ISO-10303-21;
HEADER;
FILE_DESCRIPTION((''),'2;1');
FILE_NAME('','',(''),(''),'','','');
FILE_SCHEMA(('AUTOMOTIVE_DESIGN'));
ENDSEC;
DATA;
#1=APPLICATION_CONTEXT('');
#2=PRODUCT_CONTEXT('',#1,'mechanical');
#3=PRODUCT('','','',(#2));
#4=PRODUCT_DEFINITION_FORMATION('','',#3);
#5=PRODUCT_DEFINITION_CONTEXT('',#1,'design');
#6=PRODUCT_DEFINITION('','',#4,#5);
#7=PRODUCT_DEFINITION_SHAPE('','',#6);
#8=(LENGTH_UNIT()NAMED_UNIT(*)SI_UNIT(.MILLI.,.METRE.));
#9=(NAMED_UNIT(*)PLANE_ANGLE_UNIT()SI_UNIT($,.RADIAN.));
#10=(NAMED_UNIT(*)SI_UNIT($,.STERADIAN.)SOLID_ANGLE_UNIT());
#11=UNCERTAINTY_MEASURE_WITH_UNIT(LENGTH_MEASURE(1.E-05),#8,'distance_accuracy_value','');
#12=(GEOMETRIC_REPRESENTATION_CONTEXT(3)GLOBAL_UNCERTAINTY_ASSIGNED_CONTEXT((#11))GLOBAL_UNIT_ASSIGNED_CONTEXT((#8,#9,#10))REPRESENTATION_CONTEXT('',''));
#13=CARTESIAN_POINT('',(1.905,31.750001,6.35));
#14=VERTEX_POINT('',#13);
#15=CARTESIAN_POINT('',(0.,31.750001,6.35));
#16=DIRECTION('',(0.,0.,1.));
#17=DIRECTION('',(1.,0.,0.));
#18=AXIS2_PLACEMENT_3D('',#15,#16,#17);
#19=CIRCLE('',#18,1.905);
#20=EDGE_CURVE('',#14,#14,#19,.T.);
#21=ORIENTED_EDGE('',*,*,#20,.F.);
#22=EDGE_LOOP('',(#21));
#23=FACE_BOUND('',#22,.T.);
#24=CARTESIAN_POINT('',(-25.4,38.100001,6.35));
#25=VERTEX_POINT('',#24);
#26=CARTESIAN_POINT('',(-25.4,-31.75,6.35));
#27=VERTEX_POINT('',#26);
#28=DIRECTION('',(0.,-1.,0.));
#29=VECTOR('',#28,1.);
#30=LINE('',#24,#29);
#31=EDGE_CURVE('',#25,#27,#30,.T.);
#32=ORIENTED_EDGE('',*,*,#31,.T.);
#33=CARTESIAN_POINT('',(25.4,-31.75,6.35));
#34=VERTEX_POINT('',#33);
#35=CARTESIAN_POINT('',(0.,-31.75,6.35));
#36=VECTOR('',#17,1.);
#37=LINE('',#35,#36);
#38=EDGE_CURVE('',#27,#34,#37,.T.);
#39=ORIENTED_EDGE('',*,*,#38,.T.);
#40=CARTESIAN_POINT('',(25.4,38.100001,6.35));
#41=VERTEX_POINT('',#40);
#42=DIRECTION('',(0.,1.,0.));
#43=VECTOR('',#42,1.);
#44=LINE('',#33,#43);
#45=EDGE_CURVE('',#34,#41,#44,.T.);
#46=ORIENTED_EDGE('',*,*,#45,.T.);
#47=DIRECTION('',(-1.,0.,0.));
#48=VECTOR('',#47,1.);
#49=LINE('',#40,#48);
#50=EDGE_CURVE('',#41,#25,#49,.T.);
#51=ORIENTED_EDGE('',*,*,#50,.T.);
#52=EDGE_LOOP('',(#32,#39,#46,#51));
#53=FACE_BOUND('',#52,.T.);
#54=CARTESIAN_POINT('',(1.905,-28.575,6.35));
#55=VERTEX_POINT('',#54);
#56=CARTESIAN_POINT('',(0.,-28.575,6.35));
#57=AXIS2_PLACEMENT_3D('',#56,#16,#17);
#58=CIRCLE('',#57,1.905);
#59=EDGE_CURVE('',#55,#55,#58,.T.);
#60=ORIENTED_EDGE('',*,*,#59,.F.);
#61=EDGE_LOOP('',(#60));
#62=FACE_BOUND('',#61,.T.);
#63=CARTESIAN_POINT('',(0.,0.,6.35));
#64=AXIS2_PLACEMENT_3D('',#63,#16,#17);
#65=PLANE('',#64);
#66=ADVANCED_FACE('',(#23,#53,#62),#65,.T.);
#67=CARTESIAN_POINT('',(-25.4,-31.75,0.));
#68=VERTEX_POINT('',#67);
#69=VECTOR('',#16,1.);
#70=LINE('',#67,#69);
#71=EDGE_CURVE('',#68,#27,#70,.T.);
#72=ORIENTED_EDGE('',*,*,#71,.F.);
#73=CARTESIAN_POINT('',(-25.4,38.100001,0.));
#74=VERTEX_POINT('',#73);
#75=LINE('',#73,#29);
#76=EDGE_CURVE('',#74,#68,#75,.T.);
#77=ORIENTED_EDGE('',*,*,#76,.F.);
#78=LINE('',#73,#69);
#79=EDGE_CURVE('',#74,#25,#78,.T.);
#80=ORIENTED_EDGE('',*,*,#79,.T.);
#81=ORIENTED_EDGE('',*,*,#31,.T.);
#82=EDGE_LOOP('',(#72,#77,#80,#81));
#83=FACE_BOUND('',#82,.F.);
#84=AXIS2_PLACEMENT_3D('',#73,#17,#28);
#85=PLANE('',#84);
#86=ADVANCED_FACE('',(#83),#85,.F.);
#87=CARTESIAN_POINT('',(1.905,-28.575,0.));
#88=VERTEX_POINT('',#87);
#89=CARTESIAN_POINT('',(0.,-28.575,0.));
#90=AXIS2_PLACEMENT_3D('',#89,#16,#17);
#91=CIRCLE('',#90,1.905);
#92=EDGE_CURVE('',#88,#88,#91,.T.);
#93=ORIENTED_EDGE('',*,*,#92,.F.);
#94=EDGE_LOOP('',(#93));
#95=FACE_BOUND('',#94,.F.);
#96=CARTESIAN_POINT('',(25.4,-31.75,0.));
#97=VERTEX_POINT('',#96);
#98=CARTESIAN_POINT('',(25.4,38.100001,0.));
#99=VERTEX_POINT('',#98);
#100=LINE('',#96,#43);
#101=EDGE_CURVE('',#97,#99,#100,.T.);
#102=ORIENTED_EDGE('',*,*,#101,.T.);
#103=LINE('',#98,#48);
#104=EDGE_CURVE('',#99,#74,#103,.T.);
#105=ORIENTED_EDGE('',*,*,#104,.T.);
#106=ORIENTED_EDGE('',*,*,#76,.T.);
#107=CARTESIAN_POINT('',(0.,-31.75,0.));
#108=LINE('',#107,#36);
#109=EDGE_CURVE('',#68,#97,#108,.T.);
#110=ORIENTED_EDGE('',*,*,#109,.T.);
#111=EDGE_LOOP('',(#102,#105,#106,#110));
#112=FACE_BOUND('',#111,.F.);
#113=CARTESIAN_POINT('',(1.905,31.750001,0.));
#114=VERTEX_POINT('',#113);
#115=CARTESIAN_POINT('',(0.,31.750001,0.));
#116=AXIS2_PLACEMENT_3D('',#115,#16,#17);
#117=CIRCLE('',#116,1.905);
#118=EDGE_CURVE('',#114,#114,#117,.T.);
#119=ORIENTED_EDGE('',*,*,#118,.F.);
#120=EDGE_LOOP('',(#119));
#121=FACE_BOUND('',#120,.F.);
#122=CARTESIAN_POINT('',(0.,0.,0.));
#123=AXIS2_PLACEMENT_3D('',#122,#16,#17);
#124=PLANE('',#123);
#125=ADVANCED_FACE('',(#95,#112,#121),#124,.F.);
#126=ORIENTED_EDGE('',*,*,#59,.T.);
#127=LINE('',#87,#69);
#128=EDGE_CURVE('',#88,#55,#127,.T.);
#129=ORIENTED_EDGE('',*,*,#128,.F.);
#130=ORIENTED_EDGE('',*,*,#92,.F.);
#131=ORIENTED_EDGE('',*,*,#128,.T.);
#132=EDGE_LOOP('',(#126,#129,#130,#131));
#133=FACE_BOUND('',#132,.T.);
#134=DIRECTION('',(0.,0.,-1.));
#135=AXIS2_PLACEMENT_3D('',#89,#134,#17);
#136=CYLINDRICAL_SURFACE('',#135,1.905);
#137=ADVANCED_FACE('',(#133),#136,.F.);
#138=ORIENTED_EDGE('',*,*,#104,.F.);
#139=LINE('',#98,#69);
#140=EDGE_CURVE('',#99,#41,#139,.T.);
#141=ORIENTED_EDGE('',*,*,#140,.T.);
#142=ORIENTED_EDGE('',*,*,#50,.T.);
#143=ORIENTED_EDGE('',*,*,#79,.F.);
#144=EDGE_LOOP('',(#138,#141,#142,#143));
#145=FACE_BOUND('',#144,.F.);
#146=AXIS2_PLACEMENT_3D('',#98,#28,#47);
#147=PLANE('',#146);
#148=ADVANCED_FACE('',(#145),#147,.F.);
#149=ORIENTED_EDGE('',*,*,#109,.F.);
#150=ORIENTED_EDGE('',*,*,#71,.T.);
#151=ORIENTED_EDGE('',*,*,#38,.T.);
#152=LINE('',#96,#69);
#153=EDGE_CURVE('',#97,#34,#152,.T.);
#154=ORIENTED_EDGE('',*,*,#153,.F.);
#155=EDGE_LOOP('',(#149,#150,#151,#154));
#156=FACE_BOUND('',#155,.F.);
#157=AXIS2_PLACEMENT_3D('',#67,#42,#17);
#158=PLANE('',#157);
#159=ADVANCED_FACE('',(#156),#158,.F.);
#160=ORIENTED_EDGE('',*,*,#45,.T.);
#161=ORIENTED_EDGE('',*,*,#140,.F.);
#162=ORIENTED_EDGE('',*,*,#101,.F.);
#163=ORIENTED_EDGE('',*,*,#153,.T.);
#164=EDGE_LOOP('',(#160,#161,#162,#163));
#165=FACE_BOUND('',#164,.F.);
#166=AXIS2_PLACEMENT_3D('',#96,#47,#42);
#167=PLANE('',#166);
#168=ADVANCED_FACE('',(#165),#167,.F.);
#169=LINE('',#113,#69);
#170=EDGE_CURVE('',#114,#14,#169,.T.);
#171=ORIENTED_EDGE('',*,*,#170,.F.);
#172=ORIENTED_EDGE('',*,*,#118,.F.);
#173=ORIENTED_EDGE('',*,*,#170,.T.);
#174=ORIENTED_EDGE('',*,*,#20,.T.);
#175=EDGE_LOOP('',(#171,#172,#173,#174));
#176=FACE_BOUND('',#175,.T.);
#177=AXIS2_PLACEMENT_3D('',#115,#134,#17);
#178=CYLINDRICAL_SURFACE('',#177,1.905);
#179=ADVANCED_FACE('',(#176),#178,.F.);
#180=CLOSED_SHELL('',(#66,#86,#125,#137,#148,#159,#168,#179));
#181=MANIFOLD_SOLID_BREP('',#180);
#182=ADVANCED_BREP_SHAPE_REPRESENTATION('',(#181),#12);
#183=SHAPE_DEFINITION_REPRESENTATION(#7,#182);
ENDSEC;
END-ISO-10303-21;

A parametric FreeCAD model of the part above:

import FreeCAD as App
import Part
import Sketcher
from FreeCAD import Vector
Q = App.Units.Quantity


def add_polygon(sketch, points):
    """Adds a closed chain of lines whose ends are joined by coincident constraints."""
    first, n = sketch.GeometryCount, len(points)
    for a, b in zip(points, points[1:] + points[:1]):
        sketch.addGeometry(Part.LineSegment(App.Vector(*a, 0), App.Vector(*b, 0)), False)
    for i in range(n):
        sketch.addConstraint(Sketcher.Constraint("Coincident", first + i, 2, first + (i + 1) % n, 1))

doc = App.newDocument("Part")
body = doc.addObject("PartDesign::Body", "Body")

sketch1 = doc.addObject("Sketcher::SketchObject", "Sketch")
body.addObject(sketch1)
sketch1.AttachmentSupport = (doc.XY_Plane, [""])
sketch1.MapMode = "FlatFace"
add_polygon(sketch1, [(-25.4, 38.1), (-25.4, -31.8), (25.4, -31.8), (25.4, 38.1)])
sketch1.addGeometry(Part.Circle(Vector(0, -28.6, 0), Vector(0, 0, 1), 1.9), False)
sketch1.addGeometry(Part.Circle(Vector(0, 31.8, 0), Vector(0, 0, 1), 1.9), False)
sketch1.addConstraint(Sketcher.Constraint("Vertical", 0))
sketch1.addConstraint(Sketcher.Constraint("Horizontal", 1))
sketch1.addConstraint(Sketcher.Constraint("Vertical", 2))
sketch1.addConstraint(Sketcher.Constraint("Horizontal", 3))
sketch1.addConstraint(Sketcher.Constraint("Equal", 4, 5))
sketch1.addConstraint(Sketcher.Constraint("PointOnObject", 4, 3, -2))
sketch1.addConstraint(Sketcher.Constraint("PointOnObject", 5, 3, -2))
sketch1.addConstraint(Sketcher.Constraint("Diameter", 4, Q("0.15 in")))
sketch1.addConstraint(Sketcher.Constraint("DistanceX", 1, 1, 1, 2, Q("2 in")))
sketch1.addConstraint(Sketcher.Constraint("DistanceX", 0, 2, -1, 1, Q("1 in")))
sketch1.addConstraint(Sketcher.Constraint("DistanceY", 0, 2, 0, 1, Q("2.75 in")))
sketch1.addConstraint(Sketcher.Constraint("DistanceY", -1, 1, 2, 2, Q("1.5 in")))
sketch1.addConstraint(Sketcher.Constraint("DistanceY", 0, 2, 5, 3, Q("2.5 in")))
sketch1.addConstraint(Sketcher.Constraint("DistanceY", 4, 3, -1, 1, Q("1.125 in")))
pad1 = doc.addObject("PartDesign::Pad", "Pad")
body.addObject(pad1)
pad1.Profile = sketch1
pad1.Length = Q("0.25 in")

doc.recompute()
